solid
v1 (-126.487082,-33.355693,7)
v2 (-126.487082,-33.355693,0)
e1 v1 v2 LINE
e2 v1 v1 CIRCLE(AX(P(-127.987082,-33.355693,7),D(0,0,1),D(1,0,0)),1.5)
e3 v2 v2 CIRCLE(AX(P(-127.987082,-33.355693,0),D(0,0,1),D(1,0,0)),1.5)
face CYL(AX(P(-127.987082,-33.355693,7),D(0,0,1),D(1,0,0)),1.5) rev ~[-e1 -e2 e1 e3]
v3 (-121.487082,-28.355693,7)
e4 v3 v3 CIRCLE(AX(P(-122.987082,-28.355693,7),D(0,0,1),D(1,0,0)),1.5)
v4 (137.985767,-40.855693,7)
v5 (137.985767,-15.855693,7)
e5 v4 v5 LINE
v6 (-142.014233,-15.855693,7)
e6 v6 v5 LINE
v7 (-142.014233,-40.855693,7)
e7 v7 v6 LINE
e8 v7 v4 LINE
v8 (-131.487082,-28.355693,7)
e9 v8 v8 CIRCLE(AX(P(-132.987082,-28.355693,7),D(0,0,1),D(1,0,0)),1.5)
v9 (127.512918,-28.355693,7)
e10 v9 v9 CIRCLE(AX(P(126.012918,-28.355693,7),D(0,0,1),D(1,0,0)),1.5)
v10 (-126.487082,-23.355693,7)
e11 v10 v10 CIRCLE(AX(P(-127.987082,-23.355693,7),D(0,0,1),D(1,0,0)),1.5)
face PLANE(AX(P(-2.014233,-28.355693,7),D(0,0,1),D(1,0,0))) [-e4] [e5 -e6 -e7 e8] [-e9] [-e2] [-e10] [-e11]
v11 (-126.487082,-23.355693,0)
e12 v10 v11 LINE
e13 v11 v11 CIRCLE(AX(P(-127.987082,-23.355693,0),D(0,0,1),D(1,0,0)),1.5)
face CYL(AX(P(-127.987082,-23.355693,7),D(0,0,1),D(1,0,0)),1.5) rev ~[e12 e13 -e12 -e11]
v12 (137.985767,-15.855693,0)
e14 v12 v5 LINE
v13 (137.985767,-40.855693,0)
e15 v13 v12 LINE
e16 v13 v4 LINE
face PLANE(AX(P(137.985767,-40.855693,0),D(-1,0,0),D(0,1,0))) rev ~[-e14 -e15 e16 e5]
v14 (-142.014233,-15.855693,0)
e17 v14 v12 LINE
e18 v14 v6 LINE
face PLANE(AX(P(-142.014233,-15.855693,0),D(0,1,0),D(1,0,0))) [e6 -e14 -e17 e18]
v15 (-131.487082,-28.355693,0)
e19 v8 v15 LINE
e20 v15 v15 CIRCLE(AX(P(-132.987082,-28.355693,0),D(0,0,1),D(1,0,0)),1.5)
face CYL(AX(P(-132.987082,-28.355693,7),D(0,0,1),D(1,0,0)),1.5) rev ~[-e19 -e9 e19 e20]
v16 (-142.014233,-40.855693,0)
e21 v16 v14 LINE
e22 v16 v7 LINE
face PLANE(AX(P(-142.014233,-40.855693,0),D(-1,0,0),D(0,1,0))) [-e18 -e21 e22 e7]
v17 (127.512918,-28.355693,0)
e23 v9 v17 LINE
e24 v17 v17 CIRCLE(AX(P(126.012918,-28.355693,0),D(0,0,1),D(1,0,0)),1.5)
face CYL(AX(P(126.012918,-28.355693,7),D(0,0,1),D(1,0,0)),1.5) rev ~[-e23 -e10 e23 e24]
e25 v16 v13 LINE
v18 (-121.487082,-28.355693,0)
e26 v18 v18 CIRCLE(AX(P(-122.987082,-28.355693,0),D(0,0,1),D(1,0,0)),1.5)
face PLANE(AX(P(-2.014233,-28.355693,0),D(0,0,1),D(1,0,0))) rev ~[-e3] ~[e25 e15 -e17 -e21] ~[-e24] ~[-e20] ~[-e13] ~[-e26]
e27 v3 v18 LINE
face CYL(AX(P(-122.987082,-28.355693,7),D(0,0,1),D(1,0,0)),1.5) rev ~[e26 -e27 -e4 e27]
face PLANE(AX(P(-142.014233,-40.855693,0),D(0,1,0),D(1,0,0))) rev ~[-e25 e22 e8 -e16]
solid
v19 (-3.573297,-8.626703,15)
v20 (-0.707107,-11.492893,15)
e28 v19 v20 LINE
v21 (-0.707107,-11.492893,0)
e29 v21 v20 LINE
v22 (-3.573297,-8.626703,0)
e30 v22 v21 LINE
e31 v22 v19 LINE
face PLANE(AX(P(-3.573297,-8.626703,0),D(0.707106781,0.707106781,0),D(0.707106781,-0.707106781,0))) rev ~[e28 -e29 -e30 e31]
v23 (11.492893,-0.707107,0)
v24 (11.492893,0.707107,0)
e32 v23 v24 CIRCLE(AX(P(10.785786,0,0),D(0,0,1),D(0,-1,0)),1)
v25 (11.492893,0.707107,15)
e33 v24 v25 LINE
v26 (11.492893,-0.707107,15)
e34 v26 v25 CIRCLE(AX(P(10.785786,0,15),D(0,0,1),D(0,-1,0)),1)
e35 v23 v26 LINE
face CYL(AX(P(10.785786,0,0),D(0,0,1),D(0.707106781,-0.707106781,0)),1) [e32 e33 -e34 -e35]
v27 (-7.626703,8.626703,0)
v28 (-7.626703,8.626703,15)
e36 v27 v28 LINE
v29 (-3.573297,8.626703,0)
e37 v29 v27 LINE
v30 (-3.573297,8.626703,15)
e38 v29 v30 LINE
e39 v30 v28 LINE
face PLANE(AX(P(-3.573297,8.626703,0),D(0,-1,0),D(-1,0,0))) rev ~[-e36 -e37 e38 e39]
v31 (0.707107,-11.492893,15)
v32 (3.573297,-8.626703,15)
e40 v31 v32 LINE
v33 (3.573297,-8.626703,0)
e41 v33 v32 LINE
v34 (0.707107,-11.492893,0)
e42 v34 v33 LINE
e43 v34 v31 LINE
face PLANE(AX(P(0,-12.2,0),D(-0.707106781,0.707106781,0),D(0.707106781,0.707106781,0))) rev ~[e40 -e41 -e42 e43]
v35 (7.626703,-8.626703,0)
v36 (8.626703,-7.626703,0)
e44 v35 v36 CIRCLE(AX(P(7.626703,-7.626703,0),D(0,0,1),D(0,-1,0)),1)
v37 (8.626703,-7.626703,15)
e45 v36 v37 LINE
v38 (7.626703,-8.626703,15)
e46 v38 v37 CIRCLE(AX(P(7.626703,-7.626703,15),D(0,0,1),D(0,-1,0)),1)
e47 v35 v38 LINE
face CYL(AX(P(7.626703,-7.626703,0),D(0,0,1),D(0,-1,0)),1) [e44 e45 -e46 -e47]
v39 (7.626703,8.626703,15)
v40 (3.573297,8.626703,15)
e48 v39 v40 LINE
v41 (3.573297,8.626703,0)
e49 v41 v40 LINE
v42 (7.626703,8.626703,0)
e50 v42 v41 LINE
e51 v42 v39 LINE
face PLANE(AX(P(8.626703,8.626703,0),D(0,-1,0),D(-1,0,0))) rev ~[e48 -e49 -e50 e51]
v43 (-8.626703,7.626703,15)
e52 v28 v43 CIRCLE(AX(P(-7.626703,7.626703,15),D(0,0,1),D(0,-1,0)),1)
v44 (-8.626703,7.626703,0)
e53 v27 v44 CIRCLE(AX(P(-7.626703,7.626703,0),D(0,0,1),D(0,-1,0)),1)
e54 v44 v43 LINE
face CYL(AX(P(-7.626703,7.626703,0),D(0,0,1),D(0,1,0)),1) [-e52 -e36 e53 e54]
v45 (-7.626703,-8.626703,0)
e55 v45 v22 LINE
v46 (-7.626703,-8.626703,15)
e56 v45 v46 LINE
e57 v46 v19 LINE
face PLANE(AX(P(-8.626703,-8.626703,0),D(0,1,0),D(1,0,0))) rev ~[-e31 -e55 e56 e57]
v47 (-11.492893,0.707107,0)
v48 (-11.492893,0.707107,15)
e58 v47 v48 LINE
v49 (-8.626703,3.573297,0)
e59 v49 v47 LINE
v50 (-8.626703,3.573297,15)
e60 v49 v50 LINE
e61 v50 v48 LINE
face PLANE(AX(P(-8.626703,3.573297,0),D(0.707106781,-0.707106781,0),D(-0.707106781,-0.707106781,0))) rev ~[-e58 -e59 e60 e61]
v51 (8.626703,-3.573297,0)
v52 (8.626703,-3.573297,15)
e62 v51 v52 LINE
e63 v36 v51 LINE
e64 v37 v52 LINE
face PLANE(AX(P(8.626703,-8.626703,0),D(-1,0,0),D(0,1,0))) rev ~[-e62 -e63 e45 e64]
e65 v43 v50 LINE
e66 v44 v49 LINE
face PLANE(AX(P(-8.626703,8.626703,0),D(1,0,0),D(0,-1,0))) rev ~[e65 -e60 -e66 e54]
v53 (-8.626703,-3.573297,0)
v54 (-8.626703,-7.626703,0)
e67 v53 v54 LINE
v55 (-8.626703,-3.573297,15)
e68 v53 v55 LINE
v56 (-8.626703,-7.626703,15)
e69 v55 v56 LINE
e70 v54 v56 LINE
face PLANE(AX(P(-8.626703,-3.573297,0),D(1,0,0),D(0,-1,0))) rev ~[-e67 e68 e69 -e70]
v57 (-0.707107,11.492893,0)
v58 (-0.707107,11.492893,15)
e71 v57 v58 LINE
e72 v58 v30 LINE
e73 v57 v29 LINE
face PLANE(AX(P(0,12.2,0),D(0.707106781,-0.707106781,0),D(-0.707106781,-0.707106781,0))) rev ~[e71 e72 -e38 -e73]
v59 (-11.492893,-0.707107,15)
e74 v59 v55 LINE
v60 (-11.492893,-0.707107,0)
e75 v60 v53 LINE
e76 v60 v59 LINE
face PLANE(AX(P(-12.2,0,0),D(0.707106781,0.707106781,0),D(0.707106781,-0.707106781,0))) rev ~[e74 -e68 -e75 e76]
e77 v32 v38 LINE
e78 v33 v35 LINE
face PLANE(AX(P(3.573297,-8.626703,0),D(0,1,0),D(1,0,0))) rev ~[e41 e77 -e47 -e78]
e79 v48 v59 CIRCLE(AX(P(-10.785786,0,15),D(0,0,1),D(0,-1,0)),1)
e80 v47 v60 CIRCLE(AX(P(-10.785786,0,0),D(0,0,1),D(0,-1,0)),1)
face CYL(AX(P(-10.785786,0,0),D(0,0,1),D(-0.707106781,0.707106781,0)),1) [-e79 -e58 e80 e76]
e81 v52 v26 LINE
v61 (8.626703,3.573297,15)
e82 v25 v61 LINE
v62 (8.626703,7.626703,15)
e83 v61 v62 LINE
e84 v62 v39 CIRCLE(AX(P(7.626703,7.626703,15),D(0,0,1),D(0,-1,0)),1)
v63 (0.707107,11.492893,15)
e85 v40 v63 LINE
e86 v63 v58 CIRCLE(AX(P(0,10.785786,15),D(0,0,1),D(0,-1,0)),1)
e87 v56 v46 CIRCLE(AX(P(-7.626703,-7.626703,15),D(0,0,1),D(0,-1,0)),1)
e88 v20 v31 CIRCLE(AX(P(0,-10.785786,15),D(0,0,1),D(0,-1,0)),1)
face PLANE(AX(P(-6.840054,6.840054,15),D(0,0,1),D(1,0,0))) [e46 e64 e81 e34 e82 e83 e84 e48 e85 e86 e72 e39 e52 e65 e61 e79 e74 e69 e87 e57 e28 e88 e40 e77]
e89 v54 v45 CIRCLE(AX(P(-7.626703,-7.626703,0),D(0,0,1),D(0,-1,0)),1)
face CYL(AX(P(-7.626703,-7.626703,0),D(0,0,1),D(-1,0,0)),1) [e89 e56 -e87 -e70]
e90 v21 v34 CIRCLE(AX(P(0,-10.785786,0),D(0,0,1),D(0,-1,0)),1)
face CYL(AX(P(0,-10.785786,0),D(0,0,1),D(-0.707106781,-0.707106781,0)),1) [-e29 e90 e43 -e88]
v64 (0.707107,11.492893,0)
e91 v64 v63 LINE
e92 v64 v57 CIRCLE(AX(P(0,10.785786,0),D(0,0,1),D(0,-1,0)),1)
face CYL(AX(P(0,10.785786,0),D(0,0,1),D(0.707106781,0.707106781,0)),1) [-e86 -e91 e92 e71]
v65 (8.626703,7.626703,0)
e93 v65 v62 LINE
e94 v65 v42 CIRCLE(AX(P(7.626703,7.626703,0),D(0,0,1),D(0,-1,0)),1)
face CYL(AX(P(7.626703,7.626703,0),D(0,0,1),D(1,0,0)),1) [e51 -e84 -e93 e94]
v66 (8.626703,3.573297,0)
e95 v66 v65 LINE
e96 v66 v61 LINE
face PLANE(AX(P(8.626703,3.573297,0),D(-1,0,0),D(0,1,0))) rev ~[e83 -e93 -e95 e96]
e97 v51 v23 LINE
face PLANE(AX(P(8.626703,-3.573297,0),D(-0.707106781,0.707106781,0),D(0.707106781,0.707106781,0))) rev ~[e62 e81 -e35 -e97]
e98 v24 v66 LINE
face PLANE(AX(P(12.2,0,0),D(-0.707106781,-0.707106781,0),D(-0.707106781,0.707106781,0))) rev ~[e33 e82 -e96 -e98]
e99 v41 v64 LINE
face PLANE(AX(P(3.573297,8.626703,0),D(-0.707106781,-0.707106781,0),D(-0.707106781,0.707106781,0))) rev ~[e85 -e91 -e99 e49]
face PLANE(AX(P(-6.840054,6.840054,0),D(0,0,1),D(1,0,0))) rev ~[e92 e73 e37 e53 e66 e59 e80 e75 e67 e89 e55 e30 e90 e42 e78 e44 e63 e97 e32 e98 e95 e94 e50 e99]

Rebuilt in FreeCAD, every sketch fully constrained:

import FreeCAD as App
import Part
import Sketcher

V = App.Vector
Q = App.Units.Quantity


def edges_at(feature, points):
    """Names of the edges that pass closest to the given points."""
    edges = feature.Shape.Edges
    near = lambda p: min(range(len(edges)), key=lambda i: edges[i].distToShape(Part.Vertex(*p))[0])
    return sorted({f"Edge{near(p) + 1}" for p in points})

doc = App.newDocument("Part")
body = doc.addObject("PartDesign::Body", "Body")

# Sketch on XY plane
sketch1 = doc.addObject("Sketcher::SketchObject", "Sketch")
body.addObject(sketch1)
sketch1.AttachmentSupport = (doc.XY_Plane, [""])
sketch1.MapMode = "FlatFace"
sketch1.addGeometry([
    Part.LineSegment(V(-4, 9, 0), V(-9, 9, 0)),  # 0
    Part.LineSegment(V(-9, 9, 0), V(-9, 4, 0)),  # 1
    Part.LineSegment(V(-9, 4, 0), V(-12, 0, 0)),  # 2
    Part.LineSegment(V(-12, 0, 0), V(-9, -4, 0)),  # 3
    Part.LineSegment(V(-9, -4, 0), V(-9, -9, 0)),  # 4
    Part.LineSegment(V(-9, -9, 0), V(-4, -9, 0)),  # 5
    Part.LineSegment(V(-4, -9, 0), V(0, -12, 0)),  # 6
    Part.LineSegment(V(0, -12, 0), V(4, -9, 0)),  # 7
    Part.LineSegment(V(4, -9, 0), V(9, -9, 0)),  # 8
    Part.LineSegment(V(9, -9, 0), V(9, -4, 0)),  # 9
    Part.LineSegment(V(9, -4, 0), V(12, 0, 0)),  # 10
    Part.LineSegment(V(12, 0, 0), V(9, 4, 0)),  # 11
    Part.LineSegment(V(9, 4, 0), V(9, 9, 0)),  # 12
    Part.LineSegment(V(9, 9, 0), V(4, 9, 0)),  # 13
    Part.LineSegment(V(4, 9, 0), V(0, 12, 0)),  # 14
    Part.LineSegment(V(0, 12, 0), V(-4, 9, 0)),  # 15
], False)
sketch1.addConstraint([
    Sketcher.Constraint("Coincident", 0, 2, 1, 1),
    Sketcher.Constraint("Coincident", 1, 2, 2, 1),
    Sketcher.Constraint("Coincident", 2, 2, 3, 1),
    Sketcher.Constraint("Coincident", 3, 2, 4, 1),
    Sketcher.Constraint("Coincident", 4, 2, 5, 1),
    Sketcher.Constraint("Coincident", 5, 2, 6, 1),
    Sketcher.Constraint("Coincident", 6, 2, 7, 1),
    Sketcher.Constraint("Coincident", 7, 2, 8, 1),
    Sketcher.Constraint("Coincident", 8, 2, 9, 1),
    Sketcher.Constraint("Coincident", 9, 2, 10, 1),
    Sketcher.Constraint("Coincident", 10, 2, 11, 1),
    Sketcher.Constraint("Coincident", 11, 2, 12, 1),
    Sketcher.Constraint("Coincident", 12, 2, 13, 1),
    Sketcher.Constraint("Coincident", 13, 2, 14, 1),
    Sketcher.Constraint("Coincident", 14, 2, 15, 1),
    Sketcher.Constraint("Coincident", 15, 2, 0, 1),
    Sketcher.Constraint("Horizontal", 0),
    Sketcher.Constraint("Vertical", 1),
    Sketcher.Constraint("Vertical", 4),
    Sketcher.Constraint("Horizontal", 5),
    Sketcher.Constraint("Horizontal", 8),
    Sketcher.Constraint("Vertical", 9),
    Sketcher.Constraint("Vertical", 12),
    Sketcher.Constraint("Horizontal", 13),
    Sketcher.Constraint("Symmetric", 0, 2, 8, 2, -1, 1),
    Sketcher.Constraint("Symmetric", 2, 2, 10, 2, -1, 1),
    Sketcher.Constraint("Symmetric", 3, 2, 11, 2, -1, 1),
    Sketcher.Constraint("Symmetric", 5, 2, 13, 2, -1, 1),
    Sketcher.Constraint("Symmetric", 6, 2, 14, 2, -1, 1),
    Sketcher.Constraint("Symmetric", 5, 2, 7, 2, -2),
    Sketcher.Constraint("Symmetric", 3, 2, 9, 2, -2),
    Sketcher.Constraint("PointOnObject", 2, 2, -1),
    Sketcher.Constraint("PointOnObject", 6, 2, -2),
    Sketcher.Constraint("Perpendicular", 2, 3),
    Sketcher.Constraint("Parallel", 3, 6),
    Sketcher.Constraint("Perpendicular", 6, 7),
    Sketcher.Constraint("Perpendicular", 14, 15),
    Sketcher.Constraint("Equal", 13, 1),
    Sketcher.Constraint("Equal", 3, 6),
    Sketcher.Constraint("DistanceX", 2, 2, -1, 1, Q("12.2 mm")),
    Sketcher.Constraint("DistanceX", 0, 2, 0, 1, Q("5.053405 mm")),
])
pad1 = doc.addObject("PartDesign::Pad", "Pad")
body.addObject(pad1)
pad1.Profile = sketch1
pad1.Length = 15
doc.recompute()

fillet = doc.addObject("PartDesign::Fillet", "Fillet")
body.addObject(fillet)
fillet.Base = (pad1, edges_at(pad1, [
    (8.627, 8.627, 7.5),
    (-8.627, 8.627, 7.5),
    (12.2, 0, 7.5),
    (8.627, -8.627, 7.5),
    (0, -12.2, 7.5),
    (-12.2, 0, 7.5),
    (-8.627, -8.627, 7.5),
    (0, 12.2, 7.5),
]))
fillet.Radius = 1
body2 = doc.addObject("PartDesign::Body", "Body001")

# Sketch on XY plane
sketch2 = doc.addObject("Sketcher::SketchObject", "Sketch001")
body2.addObject(sketch2)
sketch2.AttachmentSupport = (doc.getObject("XY_Plane001"), [""])
sketch2.MapMode = "FlatFace"
sketch2.addGeometry([
    Part.LineSegment(V(-142, -16, 0), V(-142, -41, 0)),
    Part.LineSegment(V(-142, -41, 0), V(138, -41, 0)),
    Part.LineSegment(V(138, -41, 0), V(138, -16, 0)),
    Part.LineSegment(V(138, -16, 0), V(-142, -16, 0)),
], False)
sketch2.addConstraint([
    Sketcher.Constraint("Coincident", 0, 2, 1, 1),
    Sketcher.Constraint("Coincident", 1, 2, 2, 1),
    Sketcher.Constraint("Coincident", 2, 2, 3, 1),
    Sketcher.Constraint("Coincident", 3, 2, 0, 1),
    Sketcher.Constraint("Vertical", 0),
    Sketcher.Constraint("Horizontal", 1),
    Sketcher.Constraint("Vertical", 2),
    Sketcher.Constraint("Horizontal", 3),
    Sketcher.Constraint("DistanceX", 1, 1, 1, 2, Q("280 mm")),
    Sketcher.Constraint("DistanceY", 0, 2, 0, 1, Q("25 mm")),
    Sketcher.Constraint("DistanceX", 0, 2, -1, 1, Q("142.014233 mm")),
    Sketcher.Constraint("DistanceY", 0, 2, -1, 1, Q("40.855693 mm")),
])
pad2 = doc.addObject("PartDesign::Pad", "Pad001")
body2.addObject(pad2)
pad2.Profile = sketch2
pad2.Length = 7

# Sketch on XY plane
sketch3 = doc.addObject("Sketcher::SketchObject", "Sketch002")
body2.addObject(sketch3)
sketch3.AttachmentSupport = (doc.getObject("XY_Plane001"), [""])
sketch3.MapMode = "FlatFace"
sketch3.AttachmentOffset = App.Placement(V(0, 0, 7), App.Rotation())
sketch3.addGeometry([
    Part.Circle(V(-128, -23.4, 0), V(0, 0, 1), 1.5),  # 0
    Part.Circle(V(-133, -28.4, 0), V(0, 0, 1), 1.5),  # 1
    Part.Circle(V(-123, -28.4, 0), V(0, 0, 1), 1.5),  # 2
    Part.Circle(V(-128, -33.4, 0), V(0, 0, 1), 1.5),  # 3
    Part.Circle(V(126, -28.4, 0), V(0, 0, 1), 1.5),  # 4
], False)
sketch3.addConstraint([
    Sketcher.Constraint("Equal", 0, 1),
    Sketcher.Constraint("Equal", 1, 2),
    Sketcher.Constraint("Equal", 2, 3),
    Sketcher.Constraint("Equal", 3, 4),
    Sketcher.Constraint("Horizontal", 1, 3, 2, 3),
    Sketcher.Constraint("Horizontal", 2, 3, 4, 3),
    Sketcher.Constraint("Vertical", 0, 3, 3, 3),
    Sketcher.Constraint("Diameter", 0, Q("3 mm")),
    Sketcher.Constraint("DistanceX", 1, 3, 0, 3, Q("5 mm")),
    Sketcher.Constraint("DistanceY", 1, 3, 0, 3, Q("5 mm")),
    Sketcher.Constraint("DistanceX", 0, 3, 2, 3, Q("5 mm")),
    Sketcher.Constraint("DistanceY", 3, 3, 1, 3, Q("5 mm")),
    Sketcher.Constraint("DistanceX", 2, 3, 4, 3, Q("249 mm")),
    Sketcher.Constraint("DistanceX", 0, 3, -1, 1, Q("127.987082 mm")),
    Sketcher.Constraint("DistanceY", 0, 3, -1, 1, Q("23.355693 mm")),
])
pocket1 = doc.addObject("PartDesign::Pocket", "Pocket")
body2.addObject(pocket1)
pocket1.Profile = sketch3
pocket1.Type = "ThroughAll"

doc.recompute()
